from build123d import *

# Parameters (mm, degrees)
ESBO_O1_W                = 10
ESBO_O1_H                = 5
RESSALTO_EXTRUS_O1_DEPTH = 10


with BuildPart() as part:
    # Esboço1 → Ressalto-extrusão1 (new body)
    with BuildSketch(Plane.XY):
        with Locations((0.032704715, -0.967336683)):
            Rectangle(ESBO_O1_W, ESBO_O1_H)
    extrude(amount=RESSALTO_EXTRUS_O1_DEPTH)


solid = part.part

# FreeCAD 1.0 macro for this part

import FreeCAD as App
import Part
import Sketcher
Q = App.Units.Quantity

doc = App.newDocument("Part")
params = doc.addObject("Spreadsheet::Sheet", "Params")
for row, (alias, value) in enumerate([
    ("sketch1_width", "10 mm"),
    ("sketch1_height", "5 mm"),
    ("pad1_length", "10 mm"),
], start=1):
    params.set(f"A{row}", alias)
    params.set(f"B{row}", "=" + value)
    params.setAlias(f"B{row}", alias)

body = doc.addObject("PartDesign::Body", "Body")

sketch1 = body.newObject("Sketcher::SketchObject", "Sketch")
sketch1.AttachmentSupport = (doc.getObject("XY_Plane"), [""])
sketch1.MapMode = "FlatFace"
sketch1.addGeometry([
    Part.LineSegment(App.Vector(-5, 2, 0), App.Vector(-5, -3, 0)),
    Part.LineSegment(App.Vector(-5, -3, 0), App.Vector(5, -3, 0)),
    Part.LineSegment(App.Vector(5, -3, 0), App.Vector(5, 2, 0)),
    Part.LineSegment(App.Vector(5, 2, 0), App.Vector(-5, 2, 0)),
], False)
sketch1.addConstraint([
    Sketcher.Constraint("Coincident", 0, 2, 1, 1),
    Sketcher.Constraint("Coincident", 1, 2, 2, 1),
    Sketcher.Constraint("Coincident", 2, 2, 3, 1),
    Sketcher.Constraint("Coincident", 3, 2, 0, 1),
    Sketcher.Constraint("Vertical", 0),
    Sketcher.Constraint("Horizontal", 1),
    Sketcher.Constraint("Vertical", 2),
    Sketcher.Constraint("Horizontal", 3),
    Sketcher.Constraint("DistanceX", 1, 1, 1, 2, Q("10 mm")),
    Sketcher.Constraint("DistanceY", 0, 2, 0, 1, Q("5 mm")),
    Sketcher.Constraint("DistanceX", 0, 2, -1, 1, Q("4.967295 mm")),
    Sketcher.Constraint("DistanceY", 0, 2, -1, 1, Q("3.467337 mm")),
])
sketch1.setExpression("Constraints[8]", "Params.sketch1_width")
sketch1.setExpression("Constraints[9]", "Params.sketch1_height")
pad1 = body.newObject("PartDesign::Pad", "Pad")
pad1.Profile = sketch1
pad1.setExpression("Length", "Params.pad1_length")

doc.recompute()
